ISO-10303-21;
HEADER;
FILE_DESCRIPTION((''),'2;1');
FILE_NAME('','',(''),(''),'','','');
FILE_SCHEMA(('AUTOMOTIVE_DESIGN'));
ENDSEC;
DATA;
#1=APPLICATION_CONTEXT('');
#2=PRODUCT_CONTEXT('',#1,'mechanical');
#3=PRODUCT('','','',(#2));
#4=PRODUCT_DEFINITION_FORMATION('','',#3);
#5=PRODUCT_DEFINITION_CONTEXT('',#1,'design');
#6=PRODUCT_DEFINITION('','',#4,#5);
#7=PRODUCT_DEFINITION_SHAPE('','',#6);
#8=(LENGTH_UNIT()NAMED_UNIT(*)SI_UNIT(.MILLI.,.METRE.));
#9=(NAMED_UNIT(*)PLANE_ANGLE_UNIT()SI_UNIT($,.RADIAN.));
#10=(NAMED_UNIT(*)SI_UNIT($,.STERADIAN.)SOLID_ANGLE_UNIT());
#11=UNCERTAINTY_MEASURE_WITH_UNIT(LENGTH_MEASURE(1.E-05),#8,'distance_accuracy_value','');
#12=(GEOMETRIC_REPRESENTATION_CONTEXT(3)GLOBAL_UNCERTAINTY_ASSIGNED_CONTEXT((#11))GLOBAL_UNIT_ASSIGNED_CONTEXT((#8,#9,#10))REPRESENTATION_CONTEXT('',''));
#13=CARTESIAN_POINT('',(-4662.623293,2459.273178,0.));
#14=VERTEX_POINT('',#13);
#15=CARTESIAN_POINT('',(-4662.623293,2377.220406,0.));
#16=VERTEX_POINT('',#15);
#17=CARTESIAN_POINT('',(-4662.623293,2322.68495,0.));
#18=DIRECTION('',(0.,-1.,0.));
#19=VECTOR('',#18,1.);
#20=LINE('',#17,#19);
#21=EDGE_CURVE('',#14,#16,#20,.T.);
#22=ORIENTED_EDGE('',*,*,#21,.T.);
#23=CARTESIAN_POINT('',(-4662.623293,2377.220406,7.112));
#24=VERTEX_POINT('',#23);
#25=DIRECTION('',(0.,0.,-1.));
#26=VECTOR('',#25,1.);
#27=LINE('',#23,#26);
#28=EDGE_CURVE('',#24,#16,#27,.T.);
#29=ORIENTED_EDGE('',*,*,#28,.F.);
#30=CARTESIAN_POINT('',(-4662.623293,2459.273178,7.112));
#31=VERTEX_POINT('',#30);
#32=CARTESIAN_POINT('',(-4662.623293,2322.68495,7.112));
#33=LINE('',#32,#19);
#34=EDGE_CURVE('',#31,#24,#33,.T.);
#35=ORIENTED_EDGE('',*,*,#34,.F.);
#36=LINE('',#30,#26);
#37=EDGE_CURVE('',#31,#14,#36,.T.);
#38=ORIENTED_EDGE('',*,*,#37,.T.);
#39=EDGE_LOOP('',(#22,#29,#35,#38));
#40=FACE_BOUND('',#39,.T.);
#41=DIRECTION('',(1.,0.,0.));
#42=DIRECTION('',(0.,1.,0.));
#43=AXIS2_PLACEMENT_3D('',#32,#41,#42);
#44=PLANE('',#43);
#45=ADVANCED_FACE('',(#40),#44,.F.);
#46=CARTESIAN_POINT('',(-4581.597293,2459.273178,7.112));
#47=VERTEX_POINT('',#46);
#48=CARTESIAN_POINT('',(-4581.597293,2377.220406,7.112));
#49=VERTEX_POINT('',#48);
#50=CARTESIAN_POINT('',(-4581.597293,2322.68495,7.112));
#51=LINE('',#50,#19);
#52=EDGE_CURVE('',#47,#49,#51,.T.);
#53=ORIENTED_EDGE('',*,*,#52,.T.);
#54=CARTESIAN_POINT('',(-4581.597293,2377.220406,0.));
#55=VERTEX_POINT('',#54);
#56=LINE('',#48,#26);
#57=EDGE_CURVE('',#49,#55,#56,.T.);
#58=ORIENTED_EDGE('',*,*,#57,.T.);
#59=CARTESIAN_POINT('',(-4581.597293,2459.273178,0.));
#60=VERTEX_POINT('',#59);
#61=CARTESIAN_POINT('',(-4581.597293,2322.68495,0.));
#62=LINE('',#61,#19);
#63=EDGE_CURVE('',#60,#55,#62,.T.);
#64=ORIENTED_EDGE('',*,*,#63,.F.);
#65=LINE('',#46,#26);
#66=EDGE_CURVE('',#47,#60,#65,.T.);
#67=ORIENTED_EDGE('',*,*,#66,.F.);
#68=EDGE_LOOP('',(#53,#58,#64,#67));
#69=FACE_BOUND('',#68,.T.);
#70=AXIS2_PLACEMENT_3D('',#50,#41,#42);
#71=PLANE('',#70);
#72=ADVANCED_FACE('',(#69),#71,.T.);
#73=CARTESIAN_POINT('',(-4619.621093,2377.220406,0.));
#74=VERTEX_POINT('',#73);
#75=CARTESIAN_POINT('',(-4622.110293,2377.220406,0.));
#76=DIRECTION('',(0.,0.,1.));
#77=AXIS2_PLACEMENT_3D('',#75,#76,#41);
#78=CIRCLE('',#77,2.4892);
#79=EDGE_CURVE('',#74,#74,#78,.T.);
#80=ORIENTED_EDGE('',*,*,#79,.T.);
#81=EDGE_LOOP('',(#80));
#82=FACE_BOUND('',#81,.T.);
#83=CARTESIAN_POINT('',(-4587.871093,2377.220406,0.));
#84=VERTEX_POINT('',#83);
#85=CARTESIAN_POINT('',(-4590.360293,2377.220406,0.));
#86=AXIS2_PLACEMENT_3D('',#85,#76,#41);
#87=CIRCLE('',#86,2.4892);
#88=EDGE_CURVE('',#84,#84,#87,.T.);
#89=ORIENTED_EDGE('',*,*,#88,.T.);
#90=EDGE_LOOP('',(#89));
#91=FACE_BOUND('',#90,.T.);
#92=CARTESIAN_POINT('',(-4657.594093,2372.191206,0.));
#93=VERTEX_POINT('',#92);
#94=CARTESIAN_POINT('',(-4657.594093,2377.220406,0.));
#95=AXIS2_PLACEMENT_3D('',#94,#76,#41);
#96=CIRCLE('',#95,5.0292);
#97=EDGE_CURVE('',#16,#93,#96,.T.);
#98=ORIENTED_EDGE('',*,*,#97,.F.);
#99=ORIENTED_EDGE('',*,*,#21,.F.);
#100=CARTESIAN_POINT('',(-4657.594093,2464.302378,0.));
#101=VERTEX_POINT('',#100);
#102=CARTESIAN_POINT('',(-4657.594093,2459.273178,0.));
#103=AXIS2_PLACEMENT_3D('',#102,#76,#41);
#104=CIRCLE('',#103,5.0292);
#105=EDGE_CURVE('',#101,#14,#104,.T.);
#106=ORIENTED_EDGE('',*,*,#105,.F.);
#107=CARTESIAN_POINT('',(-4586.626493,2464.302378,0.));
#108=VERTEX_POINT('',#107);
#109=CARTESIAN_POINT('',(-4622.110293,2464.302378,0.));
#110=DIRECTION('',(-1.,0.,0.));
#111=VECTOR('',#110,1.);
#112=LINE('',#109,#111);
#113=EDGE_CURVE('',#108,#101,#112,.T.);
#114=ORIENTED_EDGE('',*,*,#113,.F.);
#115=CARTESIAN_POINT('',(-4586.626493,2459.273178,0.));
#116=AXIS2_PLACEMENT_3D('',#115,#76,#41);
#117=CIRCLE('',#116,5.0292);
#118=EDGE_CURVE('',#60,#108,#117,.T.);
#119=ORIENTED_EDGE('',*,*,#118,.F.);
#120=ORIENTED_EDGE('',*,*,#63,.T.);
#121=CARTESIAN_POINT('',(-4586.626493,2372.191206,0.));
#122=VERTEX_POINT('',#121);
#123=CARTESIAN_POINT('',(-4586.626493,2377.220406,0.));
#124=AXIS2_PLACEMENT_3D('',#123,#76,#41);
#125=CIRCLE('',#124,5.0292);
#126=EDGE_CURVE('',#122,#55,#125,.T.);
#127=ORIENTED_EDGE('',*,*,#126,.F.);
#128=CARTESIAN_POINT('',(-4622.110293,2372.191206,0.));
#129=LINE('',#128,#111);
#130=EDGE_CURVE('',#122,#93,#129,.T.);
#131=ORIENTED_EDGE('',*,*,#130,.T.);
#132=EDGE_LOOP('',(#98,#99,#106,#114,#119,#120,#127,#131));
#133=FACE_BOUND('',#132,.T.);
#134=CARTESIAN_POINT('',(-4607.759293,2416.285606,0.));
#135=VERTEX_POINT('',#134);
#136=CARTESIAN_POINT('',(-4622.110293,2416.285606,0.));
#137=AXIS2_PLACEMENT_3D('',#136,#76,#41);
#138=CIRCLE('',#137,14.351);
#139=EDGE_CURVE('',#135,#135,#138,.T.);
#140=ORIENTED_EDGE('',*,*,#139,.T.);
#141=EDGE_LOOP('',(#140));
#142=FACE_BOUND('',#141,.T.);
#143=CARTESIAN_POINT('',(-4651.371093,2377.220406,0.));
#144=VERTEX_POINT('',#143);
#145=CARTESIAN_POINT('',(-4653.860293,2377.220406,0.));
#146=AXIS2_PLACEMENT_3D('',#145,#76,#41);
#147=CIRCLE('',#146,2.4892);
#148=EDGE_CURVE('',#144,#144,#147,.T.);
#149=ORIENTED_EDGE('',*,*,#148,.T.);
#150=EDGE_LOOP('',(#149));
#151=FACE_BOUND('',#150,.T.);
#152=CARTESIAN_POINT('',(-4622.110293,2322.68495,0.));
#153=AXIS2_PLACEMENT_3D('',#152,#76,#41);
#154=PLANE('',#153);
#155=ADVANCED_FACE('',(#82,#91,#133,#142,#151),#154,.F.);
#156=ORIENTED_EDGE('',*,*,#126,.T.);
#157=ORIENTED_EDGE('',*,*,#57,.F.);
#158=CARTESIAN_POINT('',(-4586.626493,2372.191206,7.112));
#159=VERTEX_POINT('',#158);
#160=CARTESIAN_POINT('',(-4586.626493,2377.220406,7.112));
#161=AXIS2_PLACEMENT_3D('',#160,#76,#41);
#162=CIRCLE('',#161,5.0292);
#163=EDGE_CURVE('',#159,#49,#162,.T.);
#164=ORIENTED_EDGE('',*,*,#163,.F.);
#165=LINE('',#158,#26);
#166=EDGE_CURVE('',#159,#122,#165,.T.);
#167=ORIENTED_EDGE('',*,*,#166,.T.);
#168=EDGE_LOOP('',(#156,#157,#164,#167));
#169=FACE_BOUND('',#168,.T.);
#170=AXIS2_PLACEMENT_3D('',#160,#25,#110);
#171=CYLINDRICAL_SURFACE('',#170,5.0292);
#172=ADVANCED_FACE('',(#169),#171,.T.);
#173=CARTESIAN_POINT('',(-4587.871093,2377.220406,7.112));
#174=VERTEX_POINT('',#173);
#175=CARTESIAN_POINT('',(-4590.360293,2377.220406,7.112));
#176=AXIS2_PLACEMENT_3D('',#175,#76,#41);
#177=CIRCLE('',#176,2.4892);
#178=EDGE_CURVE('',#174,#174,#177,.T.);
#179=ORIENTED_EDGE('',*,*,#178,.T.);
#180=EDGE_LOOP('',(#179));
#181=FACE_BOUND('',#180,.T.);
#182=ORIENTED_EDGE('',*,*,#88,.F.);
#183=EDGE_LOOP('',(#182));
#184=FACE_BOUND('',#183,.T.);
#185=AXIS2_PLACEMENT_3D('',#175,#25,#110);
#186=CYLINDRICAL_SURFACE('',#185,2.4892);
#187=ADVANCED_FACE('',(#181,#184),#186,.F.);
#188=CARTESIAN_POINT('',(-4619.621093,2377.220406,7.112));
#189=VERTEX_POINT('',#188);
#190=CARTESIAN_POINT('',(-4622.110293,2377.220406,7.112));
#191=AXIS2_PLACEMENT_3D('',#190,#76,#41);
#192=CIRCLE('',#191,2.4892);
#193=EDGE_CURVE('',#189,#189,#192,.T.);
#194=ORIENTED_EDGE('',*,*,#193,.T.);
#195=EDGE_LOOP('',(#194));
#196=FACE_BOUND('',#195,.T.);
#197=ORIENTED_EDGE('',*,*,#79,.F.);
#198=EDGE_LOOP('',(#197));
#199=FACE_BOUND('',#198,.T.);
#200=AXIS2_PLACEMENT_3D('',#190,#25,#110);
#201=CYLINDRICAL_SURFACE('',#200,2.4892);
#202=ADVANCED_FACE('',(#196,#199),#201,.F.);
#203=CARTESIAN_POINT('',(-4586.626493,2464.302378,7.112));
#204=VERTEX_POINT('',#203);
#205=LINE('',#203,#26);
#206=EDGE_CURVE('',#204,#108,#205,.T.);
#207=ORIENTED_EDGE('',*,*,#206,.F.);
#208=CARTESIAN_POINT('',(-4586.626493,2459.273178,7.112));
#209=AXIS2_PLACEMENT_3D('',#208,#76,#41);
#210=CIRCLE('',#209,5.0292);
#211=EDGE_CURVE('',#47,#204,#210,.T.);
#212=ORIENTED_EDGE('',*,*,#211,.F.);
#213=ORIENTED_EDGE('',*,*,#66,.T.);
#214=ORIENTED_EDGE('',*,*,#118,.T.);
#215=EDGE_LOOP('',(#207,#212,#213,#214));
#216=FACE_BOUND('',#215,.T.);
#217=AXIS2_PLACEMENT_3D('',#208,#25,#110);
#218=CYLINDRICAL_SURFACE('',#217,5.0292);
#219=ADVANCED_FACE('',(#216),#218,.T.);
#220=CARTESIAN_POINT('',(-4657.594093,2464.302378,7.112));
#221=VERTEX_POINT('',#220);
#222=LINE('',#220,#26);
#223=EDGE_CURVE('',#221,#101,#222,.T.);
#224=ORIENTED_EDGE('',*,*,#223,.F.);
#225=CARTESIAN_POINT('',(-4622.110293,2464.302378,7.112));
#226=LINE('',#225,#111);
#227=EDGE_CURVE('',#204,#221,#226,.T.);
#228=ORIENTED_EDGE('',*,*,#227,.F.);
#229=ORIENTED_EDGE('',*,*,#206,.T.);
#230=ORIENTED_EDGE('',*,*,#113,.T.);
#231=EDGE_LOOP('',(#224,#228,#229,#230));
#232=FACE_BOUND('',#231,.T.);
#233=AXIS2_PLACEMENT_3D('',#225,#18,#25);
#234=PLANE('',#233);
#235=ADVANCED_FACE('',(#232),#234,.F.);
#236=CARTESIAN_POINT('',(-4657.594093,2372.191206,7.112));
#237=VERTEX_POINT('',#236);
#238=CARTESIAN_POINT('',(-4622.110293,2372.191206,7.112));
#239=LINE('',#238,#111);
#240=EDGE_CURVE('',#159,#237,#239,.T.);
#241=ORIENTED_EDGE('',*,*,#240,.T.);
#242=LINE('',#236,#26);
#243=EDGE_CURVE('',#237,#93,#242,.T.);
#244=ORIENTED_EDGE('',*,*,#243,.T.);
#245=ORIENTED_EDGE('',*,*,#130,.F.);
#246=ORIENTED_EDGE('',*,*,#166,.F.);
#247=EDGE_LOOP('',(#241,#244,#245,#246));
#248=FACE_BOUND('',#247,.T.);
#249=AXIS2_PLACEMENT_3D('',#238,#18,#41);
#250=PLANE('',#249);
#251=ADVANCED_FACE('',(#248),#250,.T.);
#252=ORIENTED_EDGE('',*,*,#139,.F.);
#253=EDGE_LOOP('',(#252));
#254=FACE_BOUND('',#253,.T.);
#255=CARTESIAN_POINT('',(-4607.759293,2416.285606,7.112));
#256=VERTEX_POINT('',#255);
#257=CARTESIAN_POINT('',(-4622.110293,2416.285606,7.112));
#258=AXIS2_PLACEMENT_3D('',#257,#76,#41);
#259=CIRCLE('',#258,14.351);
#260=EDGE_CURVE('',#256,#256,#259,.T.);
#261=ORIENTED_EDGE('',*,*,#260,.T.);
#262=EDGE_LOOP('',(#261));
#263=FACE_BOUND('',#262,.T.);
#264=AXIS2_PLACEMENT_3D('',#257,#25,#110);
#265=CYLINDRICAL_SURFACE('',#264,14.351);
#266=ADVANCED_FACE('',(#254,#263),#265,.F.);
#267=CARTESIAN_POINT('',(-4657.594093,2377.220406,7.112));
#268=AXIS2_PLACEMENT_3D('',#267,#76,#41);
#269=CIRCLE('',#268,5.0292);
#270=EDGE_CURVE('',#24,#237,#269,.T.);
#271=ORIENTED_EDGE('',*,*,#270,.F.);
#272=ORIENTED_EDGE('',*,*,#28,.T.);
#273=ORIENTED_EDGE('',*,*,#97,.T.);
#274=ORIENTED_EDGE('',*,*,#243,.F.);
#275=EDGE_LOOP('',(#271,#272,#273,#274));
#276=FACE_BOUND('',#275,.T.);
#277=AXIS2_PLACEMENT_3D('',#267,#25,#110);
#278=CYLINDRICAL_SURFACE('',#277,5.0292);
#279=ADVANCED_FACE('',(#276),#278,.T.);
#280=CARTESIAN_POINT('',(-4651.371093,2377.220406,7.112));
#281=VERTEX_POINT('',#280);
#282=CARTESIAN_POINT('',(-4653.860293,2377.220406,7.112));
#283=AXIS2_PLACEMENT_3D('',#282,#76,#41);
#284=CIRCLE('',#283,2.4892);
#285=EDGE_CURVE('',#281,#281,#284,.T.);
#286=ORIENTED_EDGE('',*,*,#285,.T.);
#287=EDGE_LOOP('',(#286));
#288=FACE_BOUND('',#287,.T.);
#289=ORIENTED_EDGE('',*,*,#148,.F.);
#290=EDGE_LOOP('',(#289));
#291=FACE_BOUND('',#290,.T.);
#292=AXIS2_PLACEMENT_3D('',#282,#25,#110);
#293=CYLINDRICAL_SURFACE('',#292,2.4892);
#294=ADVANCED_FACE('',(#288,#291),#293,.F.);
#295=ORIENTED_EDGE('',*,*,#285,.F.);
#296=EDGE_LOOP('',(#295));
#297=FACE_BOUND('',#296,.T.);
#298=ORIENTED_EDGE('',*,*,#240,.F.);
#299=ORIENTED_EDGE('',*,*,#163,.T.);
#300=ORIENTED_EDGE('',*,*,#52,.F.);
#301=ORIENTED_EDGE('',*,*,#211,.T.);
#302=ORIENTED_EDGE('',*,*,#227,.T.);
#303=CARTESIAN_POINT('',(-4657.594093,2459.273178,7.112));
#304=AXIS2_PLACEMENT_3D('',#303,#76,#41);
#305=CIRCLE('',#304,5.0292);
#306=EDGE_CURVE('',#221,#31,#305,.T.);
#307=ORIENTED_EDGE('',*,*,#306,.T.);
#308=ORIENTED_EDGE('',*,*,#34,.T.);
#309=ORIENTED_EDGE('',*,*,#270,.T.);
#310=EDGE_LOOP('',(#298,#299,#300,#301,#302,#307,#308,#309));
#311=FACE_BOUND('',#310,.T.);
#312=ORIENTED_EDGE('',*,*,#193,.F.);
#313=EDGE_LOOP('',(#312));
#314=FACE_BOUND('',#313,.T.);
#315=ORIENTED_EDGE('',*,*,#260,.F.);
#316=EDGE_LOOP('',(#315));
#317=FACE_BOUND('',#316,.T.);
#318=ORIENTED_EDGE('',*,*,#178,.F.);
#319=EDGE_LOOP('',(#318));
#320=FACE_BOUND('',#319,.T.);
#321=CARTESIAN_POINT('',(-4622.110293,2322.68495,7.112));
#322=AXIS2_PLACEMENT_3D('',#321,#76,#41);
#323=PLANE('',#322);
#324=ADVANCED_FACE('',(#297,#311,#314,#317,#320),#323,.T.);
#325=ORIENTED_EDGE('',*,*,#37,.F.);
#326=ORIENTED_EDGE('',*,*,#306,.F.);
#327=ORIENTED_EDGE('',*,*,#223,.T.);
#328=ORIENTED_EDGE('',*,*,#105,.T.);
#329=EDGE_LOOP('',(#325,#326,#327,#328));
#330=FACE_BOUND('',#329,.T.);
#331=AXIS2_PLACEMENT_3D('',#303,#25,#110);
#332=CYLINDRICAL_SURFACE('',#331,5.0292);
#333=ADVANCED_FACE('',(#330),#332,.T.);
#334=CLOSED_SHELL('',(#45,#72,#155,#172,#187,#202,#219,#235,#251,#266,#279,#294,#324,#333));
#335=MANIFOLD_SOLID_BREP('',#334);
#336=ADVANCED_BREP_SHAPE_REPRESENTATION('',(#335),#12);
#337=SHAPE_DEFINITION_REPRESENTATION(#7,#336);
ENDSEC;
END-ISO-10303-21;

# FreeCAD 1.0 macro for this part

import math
import FreeCAD as App
import Part
import Sketcher

V = App.Vector
Q = App.Units.Quantity

doc = App.newDocument("Part")
body = doc.addObject("PartDesign::Body", "Body")

sketch1 = body.newObject("Sketcher::SketchObject", "Sketch")
sketch1.AttachmentSupport = (doc.getObject("XY_Plane"), [""])
sketch1.MapMode = "FlatFace"
sketch1.addGeometry([
    Part.LineSegment(V(-4581.597293, 2377.220406, 0), V(-4581.597293, 2459.273178, 0)),
    Part.ArcOfCircle(Part.Circle(V(-4586.626493, 2459.273178, 0), V(0, 0, 1), 5.0292), math.radians(0), math.radians(90)),
    Part.LineSegment(V(-4586.626493, 2464.302378, 0), V(-4657.594093, 2464.302378, 0)),
    Part.ArcOfCircle(Part.Circle(V(-4657.594093, 2459.273178, 0), V(0, 0, 1), 5.0292), math.radians(90), math.radians(180)),
    Part.LineSegment(V(-4662.623293, 2459.273178, 0), V(-4662.623293, 2377.220406, 0)),
    Part.ArcOfCircle(Part.Circle(V(-4657.594093, 2377.220406, 0), V(0, 0, 1), 5.0292), math.radians(180), math.radians(270)),
    Part.LineSegment(V(-4657.594093, 2372.191206, 0), V(-4586.626493, 2372.191206, 0)),
    Part.ArcOfCircle(Part.Circle(V(-4586.626493, 2377.220406, 0), V(0, 0, 1), 5.0292), math.radians(-90), math.radians(0)),
    Part.Circle(V(-4590.360293, 2377.220406, 0), V(0, 0, 1), 2.4892),
    Part.Circle(V(-4622.110293, 2377.220406, 0), V(0, 0, 1), 2.4892),
    Part.Circle(V(-4653.860293, 2377.220406, 0), V(0, 0, 1), 2.4892),
    Part.Circle(V(-4622.110293, 2416.285606, 0), V(0, 0, 1), 14.351),
], False)
sketch1.addConstraint([
    Sketcher.Constraint("Tangent", 0, 2, 1, 1),
    Sketcher.Constraint("Tangent", 1, 2, 2, 1),
    Sketcher.Constraint("Tangent", 2, 2, 3, 1),
    Sketcher.Constraint("Tangent", 3, 2, 4, 1),
    Sketcher.Constraint("Tangent", 4, 2, 5, 1),
    Sketcher.Constraint("Tangent", 5, 2, 6, 1),
    Sketcher.Constraint("Tangent", 6, 2, 7, 1),
    Sketcher.Constraint("Tangent", 7, 2, 0, 1),
    Sketcher.Constraint("Vertical", 0),
    Sketcher.Constraint("Horizontal", 2),
    Sketcher.Constraint("Vertical", 4),
    Sketcher.Constraint("Horizontal", 6),
    Sketcher.Constraint("Equal", 1, 3),
    Sketcher.Constraint("Equal", 3, 5),
    Sketcher.Constraint("Equal", 5, 7),
    Sketcher.Constraint("Equal", 8, 9),
    Sketcher.Constraint("Equal", 9, 10),
    Sketcher.Constraint("Horizontal", 7, 3, 8, 3),
    Sketcher.Constraint("Horizontal", 8, 3, 9, 3),
    Sketcher.Constraint("Horizontal", 9, 3, 10, 3),
    Sketcher.Constraint("Vertical", 9, 3, 11, 3),
    Sketcher.Constraint("Diameter", 11, Q("1.13 in")),
    Sketcher.Constraint("Diameter", 8, Q("0.196 in")),
    Sketcher.Constraint("Radius", 1, Q("0.198 in")),
    Sketcher.Constraint("DistanceX", 10, 3, 8, 3, Q("2.5 in")),
    Sketcher.Constraint("DistanceX", 2, 2, 2, 1, Q("2.794 in")),
    Sketcher.Constraint("DistanceX", 9, 3, 8, 3, Q("1.25 in")),
    Sketcher.Constraint("DistanceX", 8, 3, 7, 3, Q("0.147 in")),
    Sketcher.Constraint("DistanceY", 9, 3, 11, 3, Q("1.538 in")),
    Sketcher.Constraint("DistanceY", 0, 1, 0, 2, Q("82.052772 mm")),
    Sketcher.Constraint("DistanceY", -1, 1, 1, 3, Q("2459.273178 mm")),
    Sketcher.Constraint("DistanceX", 1, 3, -1, 1, Q("4586.626493 mm")),
])
pad1 = body.newObject("PartDesign::Pad", "Pad")
pad1.Profile = sketch1
pad1.Length = Q("0.28 in")

doc.recompute()
